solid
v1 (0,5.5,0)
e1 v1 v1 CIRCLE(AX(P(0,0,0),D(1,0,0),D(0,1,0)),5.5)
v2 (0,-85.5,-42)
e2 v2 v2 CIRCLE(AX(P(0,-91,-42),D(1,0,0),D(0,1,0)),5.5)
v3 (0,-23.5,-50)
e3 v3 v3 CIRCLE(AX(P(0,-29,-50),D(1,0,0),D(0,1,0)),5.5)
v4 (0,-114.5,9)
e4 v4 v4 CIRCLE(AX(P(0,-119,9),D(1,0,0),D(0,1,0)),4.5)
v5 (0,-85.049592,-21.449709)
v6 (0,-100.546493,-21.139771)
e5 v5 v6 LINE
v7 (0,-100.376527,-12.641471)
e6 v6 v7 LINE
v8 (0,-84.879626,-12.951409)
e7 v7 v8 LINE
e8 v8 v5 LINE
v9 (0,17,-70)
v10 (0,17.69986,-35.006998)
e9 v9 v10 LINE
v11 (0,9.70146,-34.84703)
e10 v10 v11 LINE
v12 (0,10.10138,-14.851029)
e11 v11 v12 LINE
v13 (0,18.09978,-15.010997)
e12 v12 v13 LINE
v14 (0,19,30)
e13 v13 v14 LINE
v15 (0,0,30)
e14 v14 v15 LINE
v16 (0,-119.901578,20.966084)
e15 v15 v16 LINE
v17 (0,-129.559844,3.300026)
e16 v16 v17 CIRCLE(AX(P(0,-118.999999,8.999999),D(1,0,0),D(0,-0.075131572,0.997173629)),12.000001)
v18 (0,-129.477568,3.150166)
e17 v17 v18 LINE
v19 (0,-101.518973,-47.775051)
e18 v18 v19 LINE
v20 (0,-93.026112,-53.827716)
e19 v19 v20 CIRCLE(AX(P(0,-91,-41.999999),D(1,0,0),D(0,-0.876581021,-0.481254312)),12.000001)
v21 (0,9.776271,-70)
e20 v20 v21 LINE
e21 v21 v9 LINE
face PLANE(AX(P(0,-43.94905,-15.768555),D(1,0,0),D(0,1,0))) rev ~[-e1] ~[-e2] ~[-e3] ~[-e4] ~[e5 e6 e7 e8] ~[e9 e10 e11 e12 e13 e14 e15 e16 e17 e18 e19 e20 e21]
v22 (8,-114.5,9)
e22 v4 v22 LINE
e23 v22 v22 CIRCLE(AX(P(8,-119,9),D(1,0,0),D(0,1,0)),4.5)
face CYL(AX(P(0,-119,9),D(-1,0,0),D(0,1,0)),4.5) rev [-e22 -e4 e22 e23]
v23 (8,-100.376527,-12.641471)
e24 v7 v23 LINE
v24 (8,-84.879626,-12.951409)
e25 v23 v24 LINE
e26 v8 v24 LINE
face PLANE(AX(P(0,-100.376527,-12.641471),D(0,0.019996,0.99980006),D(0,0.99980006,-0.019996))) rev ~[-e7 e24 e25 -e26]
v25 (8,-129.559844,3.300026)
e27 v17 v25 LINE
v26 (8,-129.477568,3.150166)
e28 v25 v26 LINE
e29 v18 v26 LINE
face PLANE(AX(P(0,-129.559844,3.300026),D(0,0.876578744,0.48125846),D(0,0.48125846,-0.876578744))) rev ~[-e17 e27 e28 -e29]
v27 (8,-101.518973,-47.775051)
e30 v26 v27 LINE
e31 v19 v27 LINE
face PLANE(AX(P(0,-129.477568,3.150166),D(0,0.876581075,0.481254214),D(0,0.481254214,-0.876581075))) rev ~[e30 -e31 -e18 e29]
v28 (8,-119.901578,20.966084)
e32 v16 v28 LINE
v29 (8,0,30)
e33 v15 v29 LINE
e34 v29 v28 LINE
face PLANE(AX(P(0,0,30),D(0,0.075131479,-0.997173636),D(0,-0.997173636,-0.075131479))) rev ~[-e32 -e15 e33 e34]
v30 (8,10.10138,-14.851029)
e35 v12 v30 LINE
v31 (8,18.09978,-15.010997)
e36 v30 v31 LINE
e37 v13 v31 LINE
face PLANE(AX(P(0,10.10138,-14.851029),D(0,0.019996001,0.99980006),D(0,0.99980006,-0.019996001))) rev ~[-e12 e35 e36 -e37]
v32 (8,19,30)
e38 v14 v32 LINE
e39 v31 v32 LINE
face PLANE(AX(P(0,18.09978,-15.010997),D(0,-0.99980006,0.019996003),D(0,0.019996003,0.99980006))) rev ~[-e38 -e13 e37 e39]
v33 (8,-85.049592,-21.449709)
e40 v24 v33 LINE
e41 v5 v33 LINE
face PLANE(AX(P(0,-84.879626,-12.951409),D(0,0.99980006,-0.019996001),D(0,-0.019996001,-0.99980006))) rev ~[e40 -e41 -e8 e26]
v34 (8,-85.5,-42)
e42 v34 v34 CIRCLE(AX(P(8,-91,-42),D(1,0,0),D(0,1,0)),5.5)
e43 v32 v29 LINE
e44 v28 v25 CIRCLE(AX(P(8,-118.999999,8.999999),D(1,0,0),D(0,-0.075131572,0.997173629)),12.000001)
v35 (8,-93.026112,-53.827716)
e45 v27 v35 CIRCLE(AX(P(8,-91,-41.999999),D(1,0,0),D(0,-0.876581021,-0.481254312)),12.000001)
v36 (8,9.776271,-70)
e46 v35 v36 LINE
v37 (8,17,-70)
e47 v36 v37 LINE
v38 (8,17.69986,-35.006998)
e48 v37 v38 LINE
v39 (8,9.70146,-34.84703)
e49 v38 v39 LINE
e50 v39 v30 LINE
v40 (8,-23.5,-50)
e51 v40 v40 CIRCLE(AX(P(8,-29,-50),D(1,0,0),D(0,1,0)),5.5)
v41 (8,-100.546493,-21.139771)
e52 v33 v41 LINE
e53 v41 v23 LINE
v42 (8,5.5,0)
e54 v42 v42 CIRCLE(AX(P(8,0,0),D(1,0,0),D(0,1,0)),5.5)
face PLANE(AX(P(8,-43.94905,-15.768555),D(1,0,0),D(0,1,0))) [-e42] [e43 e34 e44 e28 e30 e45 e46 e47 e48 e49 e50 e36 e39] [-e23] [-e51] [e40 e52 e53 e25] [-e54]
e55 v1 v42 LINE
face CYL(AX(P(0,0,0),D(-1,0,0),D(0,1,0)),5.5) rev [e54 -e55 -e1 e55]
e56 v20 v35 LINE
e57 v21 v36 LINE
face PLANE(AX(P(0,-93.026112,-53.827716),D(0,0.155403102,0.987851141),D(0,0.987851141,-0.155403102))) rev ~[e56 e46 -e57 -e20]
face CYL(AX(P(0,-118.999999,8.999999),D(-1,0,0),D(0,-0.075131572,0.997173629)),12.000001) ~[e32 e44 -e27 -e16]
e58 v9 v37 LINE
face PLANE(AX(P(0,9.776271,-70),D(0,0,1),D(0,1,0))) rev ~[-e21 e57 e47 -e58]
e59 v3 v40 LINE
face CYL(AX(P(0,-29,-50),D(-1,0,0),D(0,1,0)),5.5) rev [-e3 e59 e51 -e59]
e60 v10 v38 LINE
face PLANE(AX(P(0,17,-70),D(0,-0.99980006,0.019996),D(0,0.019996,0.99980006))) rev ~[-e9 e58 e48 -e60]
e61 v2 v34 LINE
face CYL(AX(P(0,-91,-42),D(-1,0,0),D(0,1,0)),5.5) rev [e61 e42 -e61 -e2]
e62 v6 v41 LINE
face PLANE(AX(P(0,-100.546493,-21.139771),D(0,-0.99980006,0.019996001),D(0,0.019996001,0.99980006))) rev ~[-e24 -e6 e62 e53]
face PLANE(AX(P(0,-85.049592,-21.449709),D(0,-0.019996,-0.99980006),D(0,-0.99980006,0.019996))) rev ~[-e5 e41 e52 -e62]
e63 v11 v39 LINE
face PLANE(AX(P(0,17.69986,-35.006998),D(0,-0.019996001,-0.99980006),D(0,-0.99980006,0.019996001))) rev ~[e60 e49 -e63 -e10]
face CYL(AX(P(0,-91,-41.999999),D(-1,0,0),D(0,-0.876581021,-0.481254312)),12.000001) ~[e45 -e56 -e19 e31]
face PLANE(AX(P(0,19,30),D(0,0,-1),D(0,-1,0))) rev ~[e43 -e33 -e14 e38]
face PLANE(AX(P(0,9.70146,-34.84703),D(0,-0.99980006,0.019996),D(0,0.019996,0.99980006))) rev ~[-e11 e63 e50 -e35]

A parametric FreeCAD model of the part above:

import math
import FreeCAD as App
import Part
import Sketcher

V = App.Vector
Q = App.Units.Quantity

doc = App.newDocument("Part")
params = doc.addObject("Spreadsheet::Sheet", "Params")
for row, (alias, value) in enumerate([
    ("sketch1_diameter", "11 mm"),
    ("sketch1_diameter2", "9 mm"),
    ("sketch1_radius", "12.000001 mm"),
    ("sketch1_width", "19 mm"),
    ("sketch1_length", "35 mm"),
    ("pad1_length", "8 mm"),
], start=1):
    params.set(f"A{row}", alias)
    params.set(f"B{row}", "=" + value)
    params.setAlias(f"B{row}", alias)

body = doc.addObject("PartDesign::Body", "Body")

# Sketch on YZ plane
sketch1 = body.newObject("Sketcher::SketchObject", "Sketch")
sketch1.AttachmentSupport = (doc.getObject("YZ_Plane"), [""])
sketch1.MapMode = "FlatFace"
sketch1.addGeometry(Part.LineSegment(V(18.1, -15.01, 0), V(19, 30, 0)), False)
sketch1.addGeometry(Part.LineSegment(V(19, 30, 0), V(0, 30, 0)), False)
sketch1.addGeometry(Part.LineSegment(V(0, 30, 0), V(-119.9, 20.97, 0)), False)
sketch1.addGeometry(Part.ArcOfCircle(Part.Circle(V(-119, 9, 0), V(0, 0, 1), 12), math.radians(94), math.radians(208)), False)
sketch1.addGeometry(Part.LineSegment(V(-129.56, 3.3, 0), V(-129.48, 3.15, 0)), False)
sketch1.addGeometry(Part.LineSegment(V(-129.48, 3.15, 0), V(-101.52, -47.78, 0)), False)
sketch1.addGeometry(Part.ArcOfCircle(Part.Circle(V(-91, -42, 0), V(0, 0, 1), 12), math.radians(-151), math.radians(-100)), False)
sketch1.addGeometry(Part.LineSegment(V(-93.03, -53.83, 0), V(9.78, -70, 0)), False)
sketch1.addGeometry(Part.LineSegment(V(9.78, -70, 0), V(17, -70, 0)), False)
sketch1.addGeometry(Part.LineSegment(V(17, -70, 0), V(17.7, -35.01, 0)), False)
sketch1.addGeometry(Part.LineSegment(V(17.7, -35.01, 0), V(9.7, -34.85, 0)), False)
sketch1.addGeometry(Part.LineSegment(V(9.7, -34.85, 0), V(10.1, -14.85, 0)), False)
sketch1.addGeometry(Part.LineSegment(V(10.1, -14.85, 0), V(18.1, -15.01, 0)), False)
sketch1.addGeometry(Part.Circle(V(-91, -42, 0), V(0, 0, 1), 5.5), False)
sketch1.addGeometry(Part.Circle(V(-29, -50, 0), V(0, 0, 1), 5.5), False)
sketch1.addGeometry(Part.LineSegment(V(-100.55, -21.14, 0), V(-100.38, -12.64, 0)), False)
sketch1.addGeometry(Part.LineSegment(V(-100.38, -12.64, 0), V(-84.88, -12.95, 0)), False)
sketch1.addGeometry(Part.LineSegment(V(-84.88, -12.95, 0), V(-85.05, -21.45, 0)), False)
sketch1.addGeometry(Part.LineSegment(V(-85.05, -21.45, 0), V(-100.55, -21.14, 0)), False)
sketch1.addGeometry(Part.Circle(V(-119, 9, 0), V(0, 0, 1), 4.5), False)
sketch1.addGeometry(Part.Circle(V(0, 0, 0), V(0, 0, 1), 5.5), False)
sketch1.addConstraint(Sketcher.Constraint("Coincident", 0, 2, 1, 1))
sketch1.addConstraint(Sketcher.Constraint("Coincident", 1, 2, 2, 1))
sketch1.addConstraint(Sketcher.Constraint("Tangent", 2, 2, 3, 1))
sketch1.addConstraint(Sketcher.Constraint("Coincident", 3, 2, 4, 1))
sketch1.addConstraint(Sketcher.Constraint("Coincident", 4, 2, 5, 1))
sketch1.addConstraint(Sketcher.Constraint("Tangent", 5, 2, 6, 1))
sketch1.addConstraint(Sketcher.Constraint("Coincident", 6, 2, 7, 1))
sketch1.addConstraint(Sketcher.Constraint("Coincident", 7, 2, 8, 1))
sketch1.addConstraint(Sketcher.Constraint("Coincident", 8, 2, 9, 1))
sketch1.addConstraint(Sketcher.Constraint("Coincident", 9, 2, 10, 1))
sketch1.addConstraint(Sketcher.Constraint("Coincident", 10, 2, 11, 1))
sketch1.addConstraint(Sketcher.Constraint("Coincident", 11, 2, 12, 1))
sketch1.addConstraint(Sketcher.Constraint("Coincident", 12, 2, 0, 1))
sketch1.addConstraint(Sketcher.Constraint("Coincident", 15, 2, 16, 1))
sketch1.addConstraint(Sketcher.Constraint("Coincident", 16, 2, 17, 1))
sketch1.addConstraint(Sketcher.Constraint("Coincident", 17, 2, 18, 1))
sketch1.addConstraint(Sketcher.Constraint("Coincident", 18, 2, 15, 1))
sketch1.addConstraint(Sketcher.Constraint("Horizontal", 1))
sketch1.addConstraint(Sketcher.Constraint("Horizontal", 8))
sketch1.addConstraint(Sketcher.Constraint("Coincident", 20, 3, -1, 1))
sketch1.addConstraint(Sketcher.Constraint("Coincident", 13, 3, 6, 3))
sketch1.addConstraint(Sketcher.Constraint("Coincident", 19, 3, 3, 3))
sketch1.addConstraint(Sketcher.Constraint("Equal", 3, 6))
sketch1.addConstraint(Sketcher.Constraint("Equal", 13, 14))
sketch1.addConstraint(Sketcher.Constraint("Equal", 14, 20))
sketch1.addConstraint(Sketcher.Constraint("PointOnObject", 1, 2, -2))
sketch1.addConstraint(Sketcher.Constraint("Parallel", 0, 9))
sketch1.addConstraint(Sketcher.Constraint("Perpendicular", 9, 10))
sketch1.addConstraint(Sketcher.Constraint("Perpendicular", 10, 11))
sketch1.addConstraint(Sketcher.Constraint("Perpendicular", 11, 12))
sketch1.addConstraint(Sketcher.Constraint("Perpendicular", 12, 15))
sketch1.addConstraint(Sketcher.Constraint("Perpendicular", 15, 16))
sketch1.addConstraint(Sketcher.Constraint("Perpendicular", 16, 17))
sketch1.addConstraint(Sketcher.Constraint("Perpendicular", 17, 18))
sketch1.addConstraint(Sketcher.Constraint("Equal", 10, 12))
sketch1.addConstraint(Sketcher.Constraint("Diameter", 13, Q("11 mm")))
sketch1.addConstraint(Sketcher.Constraint("Diameter", 19, Q("9 mm")))
sketch1.addConstraint(Sketcher.Constraint("Radius", 3, Q("12.000001 mm")))
sketch1.addConstraint(Sketcher.Constraint("DistanceX", 1, 2, 1, 1, Q("19 mm")))
sketch1.addConstraint(Sketcher.Constraint("Distance", 9, Q("35 mm")))
sketch1.addConstraint(Sketcher.Constraint("Distance", 10, Q("8 mm")))
sketch1.addConstraint(Sketcher.Constraint("Distance", 11, Q("20 mm")))
sketch1.addConstraint(Sketcher.Constraint("DistanceX", 3, 3, -1, 1, Q("118.999999 mm")))
sketch1.addConstraint(Sketcher.Constraint("DistanceY", -1, 1, 3, 3, Q("8.999999 mm")))
sketch1.addConstraint(Sketcher.Constraint("DistanceX", 6, 3, -1, 1, Q("91 mm")))
sketch1.addConstraint(Sketcher.Constraint("DistanceY", 6, 3, -1, 1, Q("41.999999 mm")))
sketch1.addConstraint(Sketcher.Constraint("DistanceX", 14, 3, -1, 1, Q("29 mm")))
sketch1.addConstraint(Sketcher.Constraint("DistanceY", 14, 3, -1, 1, Q("50 mm")))
sketch1.addConstraint(Sketcher.Constraint("DistanceY", -1, 1, 0, 2, Q("30 mm")))
sketch1.addConstraint(Sketcher.Constraint("DistanceY", 7, 2, -1, 1, Q("70 mm")))
sketch1.addConstraint(Sketcher.Constraint("DistanceX", -1, 1, 8, 2, Q("17 mm")))
sketch1.addConstraint(Sketcher.Constraint("Distance", 15, Q("8.499999 mm")))
sketch1.addConstraint(Sketcher.Constraint("Distance", 16, Q("15.5 mm")))
sketch1.addConstraint(Sketcher.Constraint("DistanceX", 8, 1, 8, 2, Q("7.223729 mm")))
sketch1.addConstraint(Sketcher.Constraint("Distance", 4, Q("0.17096 mm")))
sketch1.addConstraint(Sketcher.Constraint("DistanceX", 4, 2, -1, 1, Q("129.477568 mm")))
sketch1.addConstraint(Sketcher.Constraint("DistanceY", 5, 2, -1, 1, Q("47.775051 mm")))
sketch1.addConstraint(Sketcher.Constraint("DistanceY", 15, 2, -1, 1, Q("12.641471 mm")))
sketch1.addConstraint(Sketcher.Constraint("DistanceX", 5, 2, 6, 2, Q("8.492861 mm")))
sketch1.addConstraint(Sketcher.Constraint("DistanceX", 4, 2, 15, 2, Q("29.101041 mm")))
sketch1.setExpression("Constraints[35]", "Params.sketch1_diameter")
sketch1.setExpression("Constraints[36]", "Params.sketch1_diameter2")
sketch1.setExpression("Constraints[37]", "Params.sketch1_radius")
sketch1.setExpression("Constraints[38]", "Params.sketch1_width")
sketch1.setExpression("Constraints[39]", "Params.sketch1_length")
pad1 = body.newObject("PartDesign::Pad", "Pad")
pad1.Profile = sketch1
pad1.setExpression("Length", "Params.pad1_length")

doc.recompute()
